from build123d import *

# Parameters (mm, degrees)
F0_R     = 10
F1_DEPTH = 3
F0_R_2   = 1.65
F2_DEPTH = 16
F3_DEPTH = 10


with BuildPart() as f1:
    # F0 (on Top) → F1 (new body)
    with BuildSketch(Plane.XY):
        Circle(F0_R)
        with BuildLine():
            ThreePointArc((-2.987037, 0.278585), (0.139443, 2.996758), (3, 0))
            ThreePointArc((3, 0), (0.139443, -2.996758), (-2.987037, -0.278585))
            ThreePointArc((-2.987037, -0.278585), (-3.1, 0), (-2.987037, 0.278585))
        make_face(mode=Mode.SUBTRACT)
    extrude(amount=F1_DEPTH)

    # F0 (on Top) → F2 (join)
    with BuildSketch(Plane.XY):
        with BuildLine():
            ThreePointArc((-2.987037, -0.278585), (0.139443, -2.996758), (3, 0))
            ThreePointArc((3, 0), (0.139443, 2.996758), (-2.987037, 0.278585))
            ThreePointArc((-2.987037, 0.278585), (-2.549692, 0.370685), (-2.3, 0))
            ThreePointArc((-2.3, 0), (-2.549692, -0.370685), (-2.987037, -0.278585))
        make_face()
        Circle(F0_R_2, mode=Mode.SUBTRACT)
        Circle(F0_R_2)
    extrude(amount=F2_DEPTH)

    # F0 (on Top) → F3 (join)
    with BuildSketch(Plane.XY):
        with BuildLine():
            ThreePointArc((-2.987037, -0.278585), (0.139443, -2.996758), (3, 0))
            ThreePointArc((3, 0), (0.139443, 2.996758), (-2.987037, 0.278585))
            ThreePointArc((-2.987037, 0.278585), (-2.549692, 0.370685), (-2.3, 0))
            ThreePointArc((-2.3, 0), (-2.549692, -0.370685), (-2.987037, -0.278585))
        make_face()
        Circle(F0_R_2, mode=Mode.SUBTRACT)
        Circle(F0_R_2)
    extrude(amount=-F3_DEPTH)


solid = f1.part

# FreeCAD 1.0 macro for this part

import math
import FreeCAD as App
import Part
import Sketcher
from FreeCAD import Vector
Q = App.Units.Quantity

doc = App.newDocument("Part")
body = doc.addObject("PartDesign::Body", "Body")

# Sketch on XY plane
sketch1 = doc.addObject("Sketcher::SketchObject", "Sketch")
body.addObject(sketch1)
sketch1.AttachmentSupport = (doc.XY_Plane, [""])
sketch1.MapMode = "FlatFace"
sketch1.addGeometry(Part.Circle(Vector(0, 0, 0), Vector(0, 0, 1), 10), False)
sketch1.addGeometry(Part.ArcOfCircle(Part.Circle(Vector(-2.700001, 0, 0), Vector(0, 0, 1), 0.399999), math.radians(135.856028), math.radians(224.143972)), False)
sketch1.addGeometry(Part.ArcOfCircle(Part.Circle(Vector(0, 0.000001, 0), Vector(0, 0, 1), 3), math.radians(-0.00001), math.radians(174.671752)), False)
sketch1.addGeometry(Part.ArcOfCircle(Part.Circle(Vector(0, -0.000001, 0), Vector(0, 0, 1), 3), math.radians(-174.671752), math.radians(0.00001)), False)
sketch1.addConstraint(Sketcher.Constraint("Coincident", 1, 1, 2, 2))
sketch1.addConstraint(Sketcher.Constraint("Tangent", 2, 1, 3, 2))
sketch1.addConstraint(Sketcher.Constraint("Coincident", 3, 1, 1, 2))
sketch1.addConstraint(Sketcher.Constraint("Coincident", 0, 3, -1, 1))
sketch1.addConstraint(Sketcher.Constraint("Coincident", 2, 3, -1, 1))
sketch1.addConstraint(Sketcher.Constraint("Equal", 2, 3))
sketch1.addConstraint(Sketcher.Constraint("PointOnObject", 1, 3, -1))
sketch1.addConstraint(Sketcher.Constraint("PointOnObject", 2, 1, -1))
sketch1.addConstraint(Sketcher.Constraint("Diameter", 0, Q("20 mm")))
sketch1.addConstraint(Sketcher.Constraint("Radius", 2, Q("3 mm")))
sketch1.addConstraint(Sketcher.Constraint("Radius", 1, Q("0.399999 mm")))
sketch1.addConstraint(Sketcher.Constraint("DistanceX", 1, 3, -1, 1, Q("2.700001 mm")))
pad1 = doc.addObject("PartDesign::Pad", "Pad")
body.addObject(pad1)
pad1.Profile = sketch1
pad1.Length = 3

# Sketch on XY plane
sketch2 = doc.addObject("Sketcher::SketchObject", "Sketch001")
body.addObject(sketch2)
sketch2.AttachmentSupport = (doc.XY_Plane, [""])
sketch2.MapMode = "FlatFace"
sketch2.addGeometry(Part.ArcOfCircle(Part.Circle(Vector(0, -0.000001, 0), Vector(0, 0, 1), 3), math.radians(-174.671752), math.radians(0.00001)), False)
sketch2.addGeometry(Part.ArcOfCircle(Part.Circle(Vector(0, 0.000001, 0), Vector(0, 0, 1), 3), math.radians(-0.00001), math.radians(174.671752)), False)
sketch2.addGeometry(Part.ArcOfCircle(Part.Circle(Vector(-2.7, 0, 0), Vector(0, 0, 1), 0.4), math.radians(0.000021), math.radians(135.856089)), False)
sketch2.addGeometry(Part.ArcOfCircle(Part.Circle(Vector(-2.7, 0, 0), Vector(0, 0, 1), 0.4), math.radians(-135.856089), math.radians(-0.000021)), False)
sketch2.addConstraint(Sketcher.Constraint("Tangent", 0, 2, 1, 1))
sketch2.addConstraint(Sketcher.Constraint("Coincident", 1, 2, 2, 2))
sketch2.addConstraint(Sketcher.Constraint("Tangent", 2, 1, 3, 2))
sketch2.addConstraint(Sketcher.Constraint("Coincident", 3, 1, 0, 1))
sketch2.addConstraint(Sketcher.Constraint("Coincident", 0, 3, -1, 1))
sketch2.addConstraint(Sketcher.Constraint("Equal", 0, 1))
sketch2.addConstraint(Sketcher.Constraint("Equal", 2, 3))
sketch2.addConstraint(Sketcher.Constraint("PointOnObject", 2, 3, -1))
sketch2.addConstraint(Sketcher.Constraint("PointOnObject", 0, 2, -1))
sketch2.addConstraint(Sketcher.Constraint("PointOnObject", 2, 1, -1))
sketch2.addConstraint(Sketcher.Constraint("Radius", 0, Q("3 mm")))
sketch2.addConstraint(Sketcher.Constraint("Radius", 2, Q("0.4 mm")))
sketch2.addConstraint(Sketcher.Constraint("DistanceX", 2, 3, -1, 1, Q("2.7 mm")))
pad2 = doc.addObject("PartDesign::Pad", "Pad001")
body.addObject(pad2)
pad2.Profile = sketch2
pad2.Length = 16

# Sketch on XY plane
sketch3 = doc.addObject("Sketcher::SketchObject", "Sketch002")
body.addObject(sketch3)
sketch3.AttachmentSupport = (doc.XY_Plane, [""])
sketch3.MapMode = "FlatFace"
sketch3.addGeometry(Part.ArcOfCircle(Part.Circle(Vector(0, -0.000001, 0), Vector(0, 0, 1), 3), math.radians(-174.671752), math.radians(0.00001)), False)
sketch3.addGeometry(Part.ArcOfCircle(Part.Circle(Vector(0, 0.000001, 0), Vector(0, 0, 1), 3), math.radians(-0.00001), math.radians(174.671752)), False)
sketch3.addGeometry(Part.ArcOfCircle(Part.Circle(Vector(-2.7, 0, 0), Vector(0, 0, 1), 0.4), math.radians(0.000021), math.radians(135.856089)), False)
sketch3.addGeometry(Part.ArcOfCircle(Part.Circle(Vector(-2.7, 0, 0), Vector(0, 0, 1), 0.4), math.radians(-135.856089), math.radians(-0.000021)), False)
sketch3.addConstraint(Sketcher.Constraint("Tangent", 0, 2, 1, 1))
sketch3.addConstraint(Sketcher.Constraint("Coincident", 1, 2, 2, 2))
sketch3.addConstraint(Sketcher.Constraint("Tangent", 2, 1, 3, 2))
sketch3.addConstraint(Sketcher.Constraint("Coincident", 3, 1, 0, 1))
sketch3.addConstraint(Sketcher.Constraint("Coincident", 0, 3, -1, 1))
sketch3.addConstraint(Sketcher.Constraint("Equal", 0, 1))
sketch3.addConstraint(Sketcher.Constraint("Equal", 2, 3))
sketch3.addConstraint(Sketcher.Constraint("PointOnObject", 2, 3, -1))
sketch3.addConstraint(Sketcher.Constraint("PointOnObject", 0, 2, -1))
sketch3.addConstraint(Sketcher.Constraint("PointOnObject", 2, 1, -1))
sketch3.addConstraint(Sketcher.Constraint("Radius", 0, Q("3 mm")))
sketch3.addConstraint(Sketcher.Constraint("Radius", 2, Q("0.4 mm")))
sketch3.addConstraint(Sketcher.Constraint("DistanceX", 2, 3, -1, 1, Q("2.7 mm")))
pad3 = doc.addObject("PartDesign::Pad", "Pad002")
body.addObject(pad3)
pad3.Profile = sketch3
pad3.Length = 10
pad3.Reversed = True

doc.recompute()
